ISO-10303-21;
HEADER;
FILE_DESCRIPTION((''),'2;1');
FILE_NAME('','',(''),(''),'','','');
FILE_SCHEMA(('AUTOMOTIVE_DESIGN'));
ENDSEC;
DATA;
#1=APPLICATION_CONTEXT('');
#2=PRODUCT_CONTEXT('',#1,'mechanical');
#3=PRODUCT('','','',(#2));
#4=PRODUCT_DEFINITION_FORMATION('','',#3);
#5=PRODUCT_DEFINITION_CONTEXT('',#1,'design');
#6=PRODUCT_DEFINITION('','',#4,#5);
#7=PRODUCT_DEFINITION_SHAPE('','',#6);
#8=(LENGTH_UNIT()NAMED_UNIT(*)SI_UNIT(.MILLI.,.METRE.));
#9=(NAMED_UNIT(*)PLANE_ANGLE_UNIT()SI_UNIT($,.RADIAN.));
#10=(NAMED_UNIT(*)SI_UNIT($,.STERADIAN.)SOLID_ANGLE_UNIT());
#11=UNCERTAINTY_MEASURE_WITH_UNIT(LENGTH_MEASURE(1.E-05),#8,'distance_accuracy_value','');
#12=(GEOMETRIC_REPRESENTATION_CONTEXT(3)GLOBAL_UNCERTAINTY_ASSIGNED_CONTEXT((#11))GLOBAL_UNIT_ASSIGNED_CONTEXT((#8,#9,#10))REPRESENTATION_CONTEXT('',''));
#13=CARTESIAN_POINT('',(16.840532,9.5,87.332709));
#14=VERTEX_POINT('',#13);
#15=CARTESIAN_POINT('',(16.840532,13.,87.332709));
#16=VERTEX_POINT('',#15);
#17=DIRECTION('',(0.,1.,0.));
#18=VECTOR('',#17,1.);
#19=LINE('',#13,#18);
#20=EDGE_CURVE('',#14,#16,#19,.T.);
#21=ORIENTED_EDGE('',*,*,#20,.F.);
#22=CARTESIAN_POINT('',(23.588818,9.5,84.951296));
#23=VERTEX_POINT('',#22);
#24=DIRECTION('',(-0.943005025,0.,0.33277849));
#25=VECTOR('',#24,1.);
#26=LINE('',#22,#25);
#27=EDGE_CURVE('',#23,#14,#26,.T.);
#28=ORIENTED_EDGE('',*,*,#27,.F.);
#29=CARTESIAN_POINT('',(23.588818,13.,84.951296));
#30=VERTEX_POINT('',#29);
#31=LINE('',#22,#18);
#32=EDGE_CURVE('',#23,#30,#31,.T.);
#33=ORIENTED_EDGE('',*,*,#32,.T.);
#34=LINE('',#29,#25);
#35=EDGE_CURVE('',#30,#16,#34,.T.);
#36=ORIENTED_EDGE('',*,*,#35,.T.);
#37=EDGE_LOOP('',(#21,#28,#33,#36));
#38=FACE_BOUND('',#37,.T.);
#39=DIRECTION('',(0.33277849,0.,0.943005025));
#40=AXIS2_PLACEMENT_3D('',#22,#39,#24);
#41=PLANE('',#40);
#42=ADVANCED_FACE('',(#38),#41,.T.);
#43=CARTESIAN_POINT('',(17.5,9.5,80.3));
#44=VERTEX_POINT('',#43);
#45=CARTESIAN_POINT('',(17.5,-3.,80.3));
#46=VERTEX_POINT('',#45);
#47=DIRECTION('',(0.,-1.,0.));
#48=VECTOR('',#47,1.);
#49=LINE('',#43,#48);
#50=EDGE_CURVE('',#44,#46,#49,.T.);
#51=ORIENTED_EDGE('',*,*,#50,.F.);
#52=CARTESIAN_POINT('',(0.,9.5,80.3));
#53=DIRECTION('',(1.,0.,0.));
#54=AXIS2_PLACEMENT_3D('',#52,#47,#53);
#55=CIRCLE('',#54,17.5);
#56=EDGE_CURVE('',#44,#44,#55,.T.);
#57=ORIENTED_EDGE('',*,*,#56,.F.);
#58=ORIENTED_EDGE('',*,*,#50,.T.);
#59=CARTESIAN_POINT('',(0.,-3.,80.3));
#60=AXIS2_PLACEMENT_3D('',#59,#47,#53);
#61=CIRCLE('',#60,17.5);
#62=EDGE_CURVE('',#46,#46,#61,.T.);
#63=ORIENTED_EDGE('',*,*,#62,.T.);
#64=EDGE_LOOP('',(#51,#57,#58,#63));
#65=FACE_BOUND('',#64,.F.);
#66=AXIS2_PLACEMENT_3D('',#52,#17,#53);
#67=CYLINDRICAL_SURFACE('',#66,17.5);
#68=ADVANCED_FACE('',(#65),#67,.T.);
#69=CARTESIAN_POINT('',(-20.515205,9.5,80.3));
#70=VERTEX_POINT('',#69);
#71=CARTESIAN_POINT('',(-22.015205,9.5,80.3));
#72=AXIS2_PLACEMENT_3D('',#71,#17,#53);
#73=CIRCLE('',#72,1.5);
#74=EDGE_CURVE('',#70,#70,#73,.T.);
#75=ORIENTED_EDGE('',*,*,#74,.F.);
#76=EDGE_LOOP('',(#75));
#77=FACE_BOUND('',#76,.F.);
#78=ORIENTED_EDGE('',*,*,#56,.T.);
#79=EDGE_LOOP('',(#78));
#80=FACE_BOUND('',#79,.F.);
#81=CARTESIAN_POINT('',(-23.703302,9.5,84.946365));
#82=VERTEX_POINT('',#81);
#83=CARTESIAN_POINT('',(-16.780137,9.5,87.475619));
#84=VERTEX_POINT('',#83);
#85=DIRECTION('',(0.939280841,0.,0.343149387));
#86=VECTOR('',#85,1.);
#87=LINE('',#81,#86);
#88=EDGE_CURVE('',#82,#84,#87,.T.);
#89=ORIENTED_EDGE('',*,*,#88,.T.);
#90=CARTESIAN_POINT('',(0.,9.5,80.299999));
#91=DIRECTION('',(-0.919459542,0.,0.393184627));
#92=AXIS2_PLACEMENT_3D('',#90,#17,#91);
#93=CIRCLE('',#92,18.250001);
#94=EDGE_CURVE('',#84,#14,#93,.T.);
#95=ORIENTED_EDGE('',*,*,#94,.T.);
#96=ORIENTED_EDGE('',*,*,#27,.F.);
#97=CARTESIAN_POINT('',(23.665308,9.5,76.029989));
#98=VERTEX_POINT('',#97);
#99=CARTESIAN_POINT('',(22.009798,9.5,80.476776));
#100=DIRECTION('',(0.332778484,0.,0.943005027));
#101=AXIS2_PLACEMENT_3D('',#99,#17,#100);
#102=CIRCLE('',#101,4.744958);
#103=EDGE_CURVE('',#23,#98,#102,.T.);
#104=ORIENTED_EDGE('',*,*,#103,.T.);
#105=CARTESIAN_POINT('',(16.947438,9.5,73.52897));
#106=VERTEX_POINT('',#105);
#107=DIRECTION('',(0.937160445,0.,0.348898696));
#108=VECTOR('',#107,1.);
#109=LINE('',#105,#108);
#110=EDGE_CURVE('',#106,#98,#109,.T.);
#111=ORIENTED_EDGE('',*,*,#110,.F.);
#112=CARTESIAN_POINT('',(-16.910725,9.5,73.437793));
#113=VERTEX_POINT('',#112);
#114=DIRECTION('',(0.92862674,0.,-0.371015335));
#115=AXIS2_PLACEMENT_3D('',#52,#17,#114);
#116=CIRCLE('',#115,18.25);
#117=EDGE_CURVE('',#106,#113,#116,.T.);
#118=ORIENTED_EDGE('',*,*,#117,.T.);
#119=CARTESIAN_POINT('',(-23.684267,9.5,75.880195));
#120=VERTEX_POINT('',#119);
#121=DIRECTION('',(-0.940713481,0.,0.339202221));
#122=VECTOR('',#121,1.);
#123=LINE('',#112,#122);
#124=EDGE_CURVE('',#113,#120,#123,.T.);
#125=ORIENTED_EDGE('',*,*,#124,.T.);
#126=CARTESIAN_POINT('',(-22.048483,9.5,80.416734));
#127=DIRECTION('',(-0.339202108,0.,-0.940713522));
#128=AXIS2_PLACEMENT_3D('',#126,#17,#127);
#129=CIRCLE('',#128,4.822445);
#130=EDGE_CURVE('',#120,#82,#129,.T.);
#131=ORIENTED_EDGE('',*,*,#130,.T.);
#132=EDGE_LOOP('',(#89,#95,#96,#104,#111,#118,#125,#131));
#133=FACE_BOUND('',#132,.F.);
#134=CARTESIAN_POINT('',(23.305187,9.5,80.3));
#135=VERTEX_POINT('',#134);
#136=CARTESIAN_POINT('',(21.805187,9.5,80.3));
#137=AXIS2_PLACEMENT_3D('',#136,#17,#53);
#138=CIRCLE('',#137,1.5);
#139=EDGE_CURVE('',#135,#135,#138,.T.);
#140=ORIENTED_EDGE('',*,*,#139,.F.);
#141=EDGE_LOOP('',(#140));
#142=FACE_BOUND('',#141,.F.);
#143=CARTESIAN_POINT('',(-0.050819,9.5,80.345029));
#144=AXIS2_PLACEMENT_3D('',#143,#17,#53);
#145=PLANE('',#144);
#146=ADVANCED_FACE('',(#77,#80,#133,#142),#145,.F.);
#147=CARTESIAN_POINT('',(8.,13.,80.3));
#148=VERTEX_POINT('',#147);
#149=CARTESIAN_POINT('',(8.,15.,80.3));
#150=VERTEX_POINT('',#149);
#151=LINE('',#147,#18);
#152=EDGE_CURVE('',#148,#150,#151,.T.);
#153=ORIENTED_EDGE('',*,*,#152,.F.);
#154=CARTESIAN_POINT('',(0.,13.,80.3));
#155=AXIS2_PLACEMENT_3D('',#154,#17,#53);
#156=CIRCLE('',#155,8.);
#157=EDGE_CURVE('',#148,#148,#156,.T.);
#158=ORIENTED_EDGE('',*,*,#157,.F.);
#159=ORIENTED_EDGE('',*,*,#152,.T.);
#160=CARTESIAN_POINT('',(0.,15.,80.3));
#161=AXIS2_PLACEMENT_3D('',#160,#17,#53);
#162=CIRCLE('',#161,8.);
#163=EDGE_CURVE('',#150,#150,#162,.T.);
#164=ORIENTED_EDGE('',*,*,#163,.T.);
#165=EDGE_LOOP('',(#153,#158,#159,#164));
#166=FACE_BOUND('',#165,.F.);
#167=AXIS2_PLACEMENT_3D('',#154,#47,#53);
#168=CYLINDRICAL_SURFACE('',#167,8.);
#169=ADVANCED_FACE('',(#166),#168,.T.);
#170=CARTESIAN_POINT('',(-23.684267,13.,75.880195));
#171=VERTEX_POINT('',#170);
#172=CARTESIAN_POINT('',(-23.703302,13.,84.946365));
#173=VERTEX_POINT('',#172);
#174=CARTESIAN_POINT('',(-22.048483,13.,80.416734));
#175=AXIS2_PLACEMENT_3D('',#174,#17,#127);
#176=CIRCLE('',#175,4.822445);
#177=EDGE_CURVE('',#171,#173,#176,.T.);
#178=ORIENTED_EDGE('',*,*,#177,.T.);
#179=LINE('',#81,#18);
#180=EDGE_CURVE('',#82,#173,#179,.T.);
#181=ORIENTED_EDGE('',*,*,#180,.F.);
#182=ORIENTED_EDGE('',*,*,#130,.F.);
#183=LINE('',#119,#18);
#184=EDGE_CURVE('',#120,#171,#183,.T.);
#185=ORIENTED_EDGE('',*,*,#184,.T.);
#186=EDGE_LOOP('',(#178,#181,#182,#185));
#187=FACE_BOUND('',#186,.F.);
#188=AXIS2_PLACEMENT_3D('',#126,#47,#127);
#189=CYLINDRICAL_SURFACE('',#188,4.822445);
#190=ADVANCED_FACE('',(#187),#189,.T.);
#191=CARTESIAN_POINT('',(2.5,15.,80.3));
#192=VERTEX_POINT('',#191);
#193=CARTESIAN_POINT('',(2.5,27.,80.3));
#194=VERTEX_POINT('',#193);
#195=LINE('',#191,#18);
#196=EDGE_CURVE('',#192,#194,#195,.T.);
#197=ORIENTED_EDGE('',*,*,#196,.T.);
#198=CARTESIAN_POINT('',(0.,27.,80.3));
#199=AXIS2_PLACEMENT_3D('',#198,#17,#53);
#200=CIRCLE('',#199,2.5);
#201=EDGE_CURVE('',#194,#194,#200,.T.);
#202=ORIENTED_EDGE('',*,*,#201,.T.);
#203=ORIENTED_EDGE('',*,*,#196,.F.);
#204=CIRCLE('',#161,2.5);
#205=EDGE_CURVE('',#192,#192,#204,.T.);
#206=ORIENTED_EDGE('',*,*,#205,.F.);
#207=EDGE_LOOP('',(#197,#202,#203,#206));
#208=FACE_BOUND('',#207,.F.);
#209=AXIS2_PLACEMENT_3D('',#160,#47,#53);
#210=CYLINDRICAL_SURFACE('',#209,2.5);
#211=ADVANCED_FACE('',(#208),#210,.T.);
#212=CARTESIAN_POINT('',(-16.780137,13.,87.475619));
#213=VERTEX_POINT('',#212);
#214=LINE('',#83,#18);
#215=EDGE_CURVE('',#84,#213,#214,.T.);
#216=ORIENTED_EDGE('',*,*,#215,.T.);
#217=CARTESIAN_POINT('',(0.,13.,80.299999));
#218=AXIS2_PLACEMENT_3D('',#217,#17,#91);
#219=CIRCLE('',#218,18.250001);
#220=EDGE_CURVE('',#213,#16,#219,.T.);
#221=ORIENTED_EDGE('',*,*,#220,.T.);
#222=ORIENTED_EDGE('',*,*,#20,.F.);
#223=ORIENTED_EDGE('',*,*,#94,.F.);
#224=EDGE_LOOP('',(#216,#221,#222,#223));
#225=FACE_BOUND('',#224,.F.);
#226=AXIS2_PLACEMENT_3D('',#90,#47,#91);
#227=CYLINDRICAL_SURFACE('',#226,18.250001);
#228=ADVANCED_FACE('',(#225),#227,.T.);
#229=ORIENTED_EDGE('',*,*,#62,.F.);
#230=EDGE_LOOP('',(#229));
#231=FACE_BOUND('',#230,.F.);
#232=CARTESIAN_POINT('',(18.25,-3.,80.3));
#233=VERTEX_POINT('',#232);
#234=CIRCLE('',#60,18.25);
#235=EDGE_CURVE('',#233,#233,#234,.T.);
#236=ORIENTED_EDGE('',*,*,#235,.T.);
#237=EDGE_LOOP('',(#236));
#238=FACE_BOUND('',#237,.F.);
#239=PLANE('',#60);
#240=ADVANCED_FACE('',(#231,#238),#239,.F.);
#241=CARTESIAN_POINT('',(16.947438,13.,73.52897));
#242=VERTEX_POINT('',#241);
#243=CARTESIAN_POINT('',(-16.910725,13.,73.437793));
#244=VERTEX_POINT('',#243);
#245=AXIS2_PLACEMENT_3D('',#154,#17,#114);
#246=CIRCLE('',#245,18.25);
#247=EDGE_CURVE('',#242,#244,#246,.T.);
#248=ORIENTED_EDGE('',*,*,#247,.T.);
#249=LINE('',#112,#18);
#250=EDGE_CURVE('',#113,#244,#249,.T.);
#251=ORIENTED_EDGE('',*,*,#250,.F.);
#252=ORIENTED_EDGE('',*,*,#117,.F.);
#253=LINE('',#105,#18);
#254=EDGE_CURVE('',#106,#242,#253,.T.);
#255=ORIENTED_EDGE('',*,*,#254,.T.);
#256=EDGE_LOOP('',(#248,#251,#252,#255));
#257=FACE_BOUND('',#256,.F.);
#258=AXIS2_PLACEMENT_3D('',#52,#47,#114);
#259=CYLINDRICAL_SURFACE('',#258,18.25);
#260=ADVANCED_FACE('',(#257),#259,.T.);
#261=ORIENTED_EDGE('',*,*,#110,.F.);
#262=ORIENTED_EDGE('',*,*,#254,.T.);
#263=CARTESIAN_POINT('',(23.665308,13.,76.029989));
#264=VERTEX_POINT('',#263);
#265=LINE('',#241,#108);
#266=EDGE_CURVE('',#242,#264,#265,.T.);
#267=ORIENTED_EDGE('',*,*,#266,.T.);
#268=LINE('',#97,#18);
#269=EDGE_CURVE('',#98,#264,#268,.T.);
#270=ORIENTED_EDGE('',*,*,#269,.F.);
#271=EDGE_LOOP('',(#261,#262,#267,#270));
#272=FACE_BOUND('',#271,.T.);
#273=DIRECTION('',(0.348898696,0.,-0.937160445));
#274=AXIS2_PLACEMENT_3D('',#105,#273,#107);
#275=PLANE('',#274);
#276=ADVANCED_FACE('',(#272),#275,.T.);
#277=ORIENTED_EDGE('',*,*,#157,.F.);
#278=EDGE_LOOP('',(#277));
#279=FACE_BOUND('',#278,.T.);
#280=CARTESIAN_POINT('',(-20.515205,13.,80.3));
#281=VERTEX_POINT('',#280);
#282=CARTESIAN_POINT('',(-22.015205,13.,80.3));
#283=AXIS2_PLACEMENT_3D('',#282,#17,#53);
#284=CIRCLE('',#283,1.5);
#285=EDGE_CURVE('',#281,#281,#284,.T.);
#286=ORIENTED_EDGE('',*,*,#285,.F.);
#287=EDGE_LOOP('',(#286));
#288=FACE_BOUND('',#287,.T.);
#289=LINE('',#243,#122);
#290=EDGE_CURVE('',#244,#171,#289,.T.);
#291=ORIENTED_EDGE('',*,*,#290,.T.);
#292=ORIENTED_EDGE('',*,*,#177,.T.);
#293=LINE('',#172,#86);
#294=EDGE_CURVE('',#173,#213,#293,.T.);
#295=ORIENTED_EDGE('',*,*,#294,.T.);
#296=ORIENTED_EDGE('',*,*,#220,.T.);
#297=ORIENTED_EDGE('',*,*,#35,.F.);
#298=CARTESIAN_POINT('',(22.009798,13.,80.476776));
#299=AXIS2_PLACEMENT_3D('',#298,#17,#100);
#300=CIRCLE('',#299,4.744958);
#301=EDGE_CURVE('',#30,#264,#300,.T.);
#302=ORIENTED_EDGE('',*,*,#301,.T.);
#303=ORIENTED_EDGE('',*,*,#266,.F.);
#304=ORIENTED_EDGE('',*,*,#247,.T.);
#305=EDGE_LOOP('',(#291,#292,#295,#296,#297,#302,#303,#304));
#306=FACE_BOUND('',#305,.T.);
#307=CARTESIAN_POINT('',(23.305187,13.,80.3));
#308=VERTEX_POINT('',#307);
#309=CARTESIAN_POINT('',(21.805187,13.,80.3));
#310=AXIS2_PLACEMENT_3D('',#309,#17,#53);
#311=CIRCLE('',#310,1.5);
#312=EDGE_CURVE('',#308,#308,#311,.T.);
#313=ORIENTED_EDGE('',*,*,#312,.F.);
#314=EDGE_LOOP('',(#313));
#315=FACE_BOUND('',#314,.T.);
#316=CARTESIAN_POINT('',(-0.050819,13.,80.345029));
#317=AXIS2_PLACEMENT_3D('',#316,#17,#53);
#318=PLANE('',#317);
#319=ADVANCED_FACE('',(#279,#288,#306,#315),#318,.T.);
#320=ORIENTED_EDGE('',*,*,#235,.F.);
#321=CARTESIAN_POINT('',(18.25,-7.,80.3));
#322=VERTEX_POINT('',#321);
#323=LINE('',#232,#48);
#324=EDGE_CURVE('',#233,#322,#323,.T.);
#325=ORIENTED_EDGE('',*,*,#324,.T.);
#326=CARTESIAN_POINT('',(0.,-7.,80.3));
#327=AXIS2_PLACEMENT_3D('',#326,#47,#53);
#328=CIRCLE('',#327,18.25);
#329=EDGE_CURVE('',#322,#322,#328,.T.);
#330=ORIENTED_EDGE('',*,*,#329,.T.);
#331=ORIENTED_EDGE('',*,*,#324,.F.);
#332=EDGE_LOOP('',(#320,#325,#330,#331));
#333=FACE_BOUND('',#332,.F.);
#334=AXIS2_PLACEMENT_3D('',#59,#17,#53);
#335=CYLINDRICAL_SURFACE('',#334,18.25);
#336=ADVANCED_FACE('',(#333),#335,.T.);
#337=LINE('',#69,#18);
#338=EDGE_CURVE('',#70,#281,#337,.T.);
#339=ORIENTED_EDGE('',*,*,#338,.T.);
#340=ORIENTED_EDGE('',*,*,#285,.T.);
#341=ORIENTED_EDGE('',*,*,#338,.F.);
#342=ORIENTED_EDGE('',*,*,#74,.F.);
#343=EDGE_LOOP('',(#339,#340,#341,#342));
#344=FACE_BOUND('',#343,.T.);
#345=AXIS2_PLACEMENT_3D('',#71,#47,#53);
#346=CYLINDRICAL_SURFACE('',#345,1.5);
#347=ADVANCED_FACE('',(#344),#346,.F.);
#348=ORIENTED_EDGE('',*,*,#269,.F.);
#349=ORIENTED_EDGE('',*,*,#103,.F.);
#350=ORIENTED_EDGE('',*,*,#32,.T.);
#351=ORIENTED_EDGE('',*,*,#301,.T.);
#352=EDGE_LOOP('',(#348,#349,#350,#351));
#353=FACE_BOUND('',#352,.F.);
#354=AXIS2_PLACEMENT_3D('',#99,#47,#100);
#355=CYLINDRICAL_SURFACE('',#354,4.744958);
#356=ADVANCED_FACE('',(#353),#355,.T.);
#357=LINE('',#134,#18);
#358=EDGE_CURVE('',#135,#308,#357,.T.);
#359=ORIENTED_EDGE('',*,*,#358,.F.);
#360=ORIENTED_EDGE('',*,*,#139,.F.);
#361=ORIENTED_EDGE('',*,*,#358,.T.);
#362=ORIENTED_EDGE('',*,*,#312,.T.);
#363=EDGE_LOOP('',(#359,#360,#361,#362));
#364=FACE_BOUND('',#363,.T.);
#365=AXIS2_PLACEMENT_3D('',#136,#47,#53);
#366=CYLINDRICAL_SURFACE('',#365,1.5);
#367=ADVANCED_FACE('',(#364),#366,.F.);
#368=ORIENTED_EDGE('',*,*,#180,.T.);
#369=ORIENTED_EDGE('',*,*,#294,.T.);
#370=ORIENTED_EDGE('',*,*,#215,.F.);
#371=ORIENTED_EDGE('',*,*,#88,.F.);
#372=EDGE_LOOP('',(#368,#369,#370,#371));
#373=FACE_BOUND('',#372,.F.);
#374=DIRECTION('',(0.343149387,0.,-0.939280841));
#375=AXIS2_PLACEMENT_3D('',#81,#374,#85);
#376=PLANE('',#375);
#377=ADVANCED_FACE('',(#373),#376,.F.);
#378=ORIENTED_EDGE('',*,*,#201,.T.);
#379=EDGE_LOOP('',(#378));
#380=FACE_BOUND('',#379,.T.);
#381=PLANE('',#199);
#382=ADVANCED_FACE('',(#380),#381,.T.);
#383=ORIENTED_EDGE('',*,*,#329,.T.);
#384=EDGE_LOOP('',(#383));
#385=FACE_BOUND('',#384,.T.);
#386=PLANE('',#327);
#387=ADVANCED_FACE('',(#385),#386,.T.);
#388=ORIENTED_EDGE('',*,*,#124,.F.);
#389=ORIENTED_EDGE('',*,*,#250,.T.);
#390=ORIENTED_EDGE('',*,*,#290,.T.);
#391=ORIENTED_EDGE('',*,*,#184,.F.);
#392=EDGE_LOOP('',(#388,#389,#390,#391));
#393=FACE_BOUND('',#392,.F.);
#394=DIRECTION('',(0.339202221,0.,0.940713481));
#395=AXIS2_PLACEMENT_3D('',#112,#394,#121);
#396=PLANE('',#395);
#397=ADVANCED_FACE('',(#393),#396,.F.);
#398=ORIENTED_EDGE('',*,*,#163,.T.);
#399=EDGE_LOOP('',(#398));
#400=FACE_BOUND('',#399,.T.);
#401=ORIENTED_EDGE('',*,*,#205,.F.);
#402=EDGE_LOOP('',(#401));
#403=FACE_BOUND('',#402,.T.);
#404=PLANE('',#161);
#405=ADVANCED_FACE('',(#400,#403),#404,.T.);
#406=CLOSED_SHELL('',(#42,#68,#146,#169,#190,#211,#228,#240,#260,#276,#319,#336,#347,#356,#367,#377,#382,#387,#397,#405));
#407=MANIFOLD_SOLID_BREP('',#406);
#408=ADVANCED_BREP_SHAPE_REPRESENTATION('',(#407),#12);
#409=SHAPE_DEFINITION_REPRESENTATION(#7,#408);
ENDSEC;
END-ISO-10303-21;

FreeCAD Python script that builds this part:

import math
import FreeCAD as App
import Part
import Sketcher

V = App.Vector

doc = App.newDocument("Part")
body = doc.addObject("PartDesign::Body", "Body")

# Sketch on XY plane
sketch1 = doc.addObject("Sketcher::SketchObject", "Sketch")
body.addObject(sketch1)
sketch1.AttachmentSupport = (doc.XY_Plane, [""])
sketch1.MapMode = "FlatFace"
sketch1.addGeometry([
    Part.ArcOfCircle(Part.Circle(V(0, 0, 0), V(0, 0, 1), 18.3), math.radians(-157), math.radians(-23)),  # 0
    Part.LineSegment(V(16.8, -7, 0), V(23.6, -4.7, 0)),  # 1
    Part.ArcOfCircle(Part.Circle(V(22, -0.2, 0), V(0, 0, 1), 4.7), math.radians(-71), math.radians(70)),  # 2
    Part.LineSegment(V(23.7, 4.3, 0), V(16.9, 6.8, 0)),  # 3
    Part.ArcOfCircle(Part.Circle(V(0, 0, 0), V(0, 0, 1), 18.3), math.radians(22), math.radians(158)),  # 4
    Part.LineSegment(V(-16.9, 6.9, 0), V(-23.7, 4.4, 0)),  # 5
    Part.ArcOfCircle(Part.Circle(V(-22, -0.1, 0), V(0, 0, 1), 4.8), math.radians(110), math.radians(250)),  # 6
    Part.LineSegment(V(-23.7, -4.6, 0), V(-16.8, -7.2, 0)),  # 7
    Part.Circle(V(-22, 0, 0), V(0, 0, 1), 1.5),  # 8
    Part.Circle(V(21.8, 0, 0), V(0, 0, 1), 1.5),  # 9
], False)
sketch1.addConstraint([
    Sketcher.Constraint("Coincident", 0, 2, 1, 1),
    Sketcher.Constraint("Tangent", 1, 2, 2, 1),
    Sketcher.Constraint("Tangent", 2, 2, 3, 1),
    Sketcher.Constraint("Coincident", 3, 2, 4, 1),
    Sketcher.Constraint("Coincident", 4, 2, 5, 1),
    Sketcher.Constraint("Tangent", 5, 2, 6, 1),
    Sketcher.Constraint("Tangent", 6, 2, 7, 1),
    Sketcher.Constraint("Coincident", 7, 2, 0, 1),
    Sketcher.Constraint("Coincident", 0, 3, -1, 1),
    Sketcher.Constraint("Coincident", 4, 3, -1, 1),
    Sketcher.Constraint("Equal", 0, 4),
    Sketcher.Constraint("Equal", 8, 9),
    Sketcher.Constraint("PointOnObject", 8, 3, -1),
    Sketcher.Constraint("PointOnObject", 9, 3, -1),
    Sketcher.Constraint("Diameter", 8, 3.0),
    Sketcher.Constraint("Radius", 0, 18.250001),
    Sketcher.Constraint("Radius", 2, 4.744958),
    Sketcher.Constraint("Radius", 6, 4.822445),
    Sketcher.Constraint("DistanceX", 6, 2, -1, 1, 23.703302),
    Sketcher.Constraint("Distance", 1, 7.156151),
    Sketcher.Constraint("Distance", 5, 7.20043),
    Sketcher.Constraint("Distance", 7, 7.370708),
    Sketcher.Constraint("DistanceY", 0, 2, -1, 1, 7.032709),
    Sketcher.Constraint("DistanceX", -1, 1, 1, 2, 23.588818),
    Sketcher.Constraint("DistanceX", -1, 1, 2, 2, 23.665308),
    Sketcher.Constraint("DistanceY", 7, 2, -1, 1, 7.175619),
    Sketcher.Constraint("DistanceX", 6, 3, 8, 3, 0.033278),
    Sketcher.Constraint("DistanceX", 9, 3, 2, 3, 0.204611),
])
pad1 = doc.addObject("PartDesign::Pad", "Pad")
body.addObject(pad1)
pad1.Profile = sketch1
pad1.Length = 3.5

# Sketch on XY plane
sketch2 = doc.addObject("Sketcher::SketchObject", "Sketch001")
body.addObject(sketch2)
sketch2.AttachmentSupport = (doc.XY_Plane, [""])
sketch2.MapMode = "FlatFace"
sketch2.addGeometry(Part.Circle(V(0, 0, 0), V(0, 0, 1), 18), False)
sketch2.addConstraint([
    Sketcher.Constraint("Coincident", 0, 3, -1, 1),
    Sketcher.Constraint("Diameter", 0, 35.0),
])
pad2 = doc.addObject("PartDesign::Pad", "Pad001")
body.addObject(pad2)
pad2.Profile = sketch2
pad2.Length = 12.5
pad2.Reversed = True

# Sketch on XY plane
sketch3 = doc.addObject("Sketcher::SketchObject", "Sketch002")
body.addObject(sketch3)
sketch3.AttachmentSupport = (doc.XY_Plane, [""])
sketch3.MapMode = "FlatFace"
sketch3.AttachmentOffset = App.Placement(V(0, 0, -12.5), App.Rotation())
sketch3.addGeometry(Part.Circle(V(0, 0, 0), V(0, 0, 1), 18), False)
sketch3.addConstraint([
    Sketcher.Constraint("Coincident", 0, 3, -1, 1),
    Sketcher.Constraint("Diameter", 0, 36.5),
])
pad3 = doc.addObject("PartDesign::Pad", "Pad002")
body.addObject(pad3)
pad3.Profile = sketch3
pad3.Length = 4
pad3.Reversed = True

# Sketch on XY plane
sketch4 = doc.addObject("Sketcher::SketchObject", "Sketch003")
body.addObject(sketch4)
sketch4.AttachmentSupport = (doc.XY_Plane, [""])
sketch4.MapMode = "FlatFace"
sketch4.AttachmentOffset = App.Placement(V(0, 0, 3.5), App.Rotation())
sketch4.addGeometry(Part.Circle(V(0, 0, 0), V(0, 0, 1), 8), False)
sketch4.addConstraint([
    Sketcher.Constraint("Coincident", 0, 3, -1, 1),
    Sketcher.Constraint("Diameter", 0, 16.0),
])
pad4 = doc.addObject("PartDesign::Pad", "Pad003")
body.addObject(pad4)
pad4.Profile = sketch4
pad4.Length = 2

# Sketch on XY plane
sketch5 = doc.addObject("Sketcher::SketchObject", "Sketch004")
body.addObject(sketch5)
sketch5.AttachmentSupport = (doc.XY_Plane, [""])
sketch5.MapMode = "FlatFace"
sketch5.AttachmentOffset = App.Placement(V(0, 0, 5.5), App.Rotation())
sketch5.addGeometry(Part.Circle(V(0, 0, 0), V(0, 0, 1), 2.5), False)
sketch5.addConstraint([
    Sketcher.Constraint("Coincident", 0, 3, -1, 1),
    Sketcher.Constraint("Diameter", 0, 5.0),
])
pad5 = doc.addObject("PartDesign::Pad", "Pad004")
body.addObject(pad5)
pad5.Profile = sketch5
pad5.Length = 12
body2 = doc.addObject("PartDesign::Body", "Body001")
doc.recompute()

body.Placement = App.Placement(V(0, 9.5, 80.3), App.Rotation(V(-1, 0, 0), 90))
boolean = doc.addObject("PartDesign::Boolean", "Boolean")
body2.addObject(boolean)
boolean.Type = "Fuse"
boolean.addObjects([body])

doc.recompute()
